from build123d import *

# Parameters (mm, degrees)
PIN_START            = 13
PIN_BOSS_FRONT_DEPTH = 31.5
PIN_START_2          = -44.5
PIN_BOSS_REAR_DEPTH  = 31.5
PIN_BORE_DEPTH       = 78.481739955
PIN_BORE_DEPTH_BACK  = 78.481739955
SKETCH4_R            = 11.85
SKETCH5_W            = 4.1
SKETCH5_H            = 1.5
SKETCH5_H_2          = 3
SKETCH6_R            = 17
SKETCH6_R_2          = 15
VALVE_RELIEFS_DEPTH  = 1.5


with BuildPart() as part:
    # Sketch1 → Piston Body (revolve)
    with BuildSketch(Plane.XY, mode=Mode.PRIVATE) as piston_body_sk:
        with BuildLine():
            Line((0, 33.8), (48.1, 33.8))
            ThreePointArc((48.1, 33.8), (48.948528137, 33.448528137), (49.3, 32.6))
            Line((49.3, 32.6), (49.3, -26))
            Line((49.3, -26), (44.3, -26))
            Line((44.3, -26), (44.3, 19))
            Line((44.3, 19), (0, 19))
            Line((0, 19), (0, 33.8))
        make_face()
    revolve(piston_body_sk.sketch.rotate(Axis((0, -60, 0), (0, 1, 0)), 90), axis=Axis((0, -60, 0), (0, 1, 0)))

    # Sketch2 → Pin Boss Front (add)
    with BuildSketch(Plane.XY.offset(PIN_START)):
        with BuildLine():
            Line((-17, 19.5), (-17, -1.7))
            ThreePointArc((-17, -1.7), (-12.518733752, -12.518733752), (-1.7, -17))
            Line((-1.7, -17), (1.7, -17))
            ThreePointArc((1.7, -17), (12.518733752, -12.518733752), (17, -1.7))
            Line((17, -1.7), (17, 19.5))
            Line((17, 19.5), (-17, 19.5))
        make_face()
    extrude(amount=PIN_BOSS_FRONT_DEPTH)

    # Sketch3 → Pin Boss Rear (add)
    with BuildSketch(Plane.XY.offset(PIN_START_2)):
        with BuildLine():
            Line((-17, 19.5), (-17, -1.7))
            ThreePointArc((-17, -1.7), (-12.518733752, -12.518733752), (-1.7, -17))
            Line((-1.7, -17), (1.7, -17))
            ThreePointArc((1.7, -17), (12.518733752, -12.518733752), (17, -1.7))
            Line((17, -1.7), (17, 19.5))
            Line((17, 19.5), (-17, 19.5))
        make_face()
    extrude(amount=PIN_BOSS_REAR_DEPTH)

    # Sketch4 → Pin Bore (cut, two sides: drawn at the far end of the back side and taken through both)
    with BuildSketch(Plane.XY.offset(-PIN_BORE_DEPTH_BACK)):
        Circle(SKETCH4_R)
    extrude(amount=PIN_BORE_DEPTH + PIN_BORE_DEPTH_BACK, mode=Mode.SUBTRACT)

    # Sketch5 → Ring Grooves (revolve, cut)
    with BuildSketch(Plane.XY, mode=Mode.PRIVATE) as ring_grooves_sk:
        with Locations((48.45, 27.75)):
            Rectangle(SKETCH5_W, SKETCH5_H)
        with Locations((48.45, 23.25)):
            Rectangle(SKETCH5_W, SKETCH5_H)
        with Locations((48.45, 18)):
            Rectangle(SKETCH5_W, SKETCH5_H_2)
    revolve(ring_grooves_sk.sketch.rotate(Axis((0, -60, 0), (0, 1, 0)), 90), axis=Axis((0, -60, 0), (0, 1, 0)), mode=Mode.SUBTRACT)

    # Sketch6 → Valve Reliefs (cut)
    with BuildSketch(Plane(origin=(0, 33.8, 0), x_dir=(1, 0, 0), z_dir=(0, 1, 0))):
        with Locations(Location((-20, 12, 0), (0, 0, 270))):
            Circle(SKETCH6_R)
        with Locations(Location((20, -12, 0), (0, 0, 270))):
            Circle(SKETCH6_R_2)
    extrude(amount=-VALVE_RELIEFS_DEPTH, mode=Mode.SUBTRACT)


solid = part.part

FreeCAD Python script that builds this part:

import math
import FreeCAD as App
import Part
import Sketcher
from FreeCAD import Vector
Q = App.Units.Quantity


def add_polygon(sketch, points):
    """Adds a closed chain of lines whose ends are joined by coincident constraints."""
    first, n = sketch.GeometryCount, len(points)
    for a, b in zip(points, points[1:] + points[:1]):
        sketch.addGeometry(Part.LineSegment(App.Vector(*a, 0), App.Vector(*b, 0)), False)
    for i in range(n):
        sketch.addConstraint(Sketcher.Constraint("Coincident", first + i, 2, first + (i + 1) % n, 1))

doc = App.newDocument("Part")
body = doc.addObject("PartDesign::Body", "Body")

sketch1 = doc.addObject("Sketcher::SketchObject", "Sketch")
body.addObject(sketch1)
sketch1.AttachmentSupport = (doc.XY_Plane, [""])
sketch1.MapMode = "FlatFace"
sketch1.addGeometry([
    Part.LineSegment(Vector(48.1, 33.8, 0), Vector(0, 33.8, 0)),
    Part.LineSegment(Vector(0, 33.8, 0), Vector(0, 19, 0)),
    Part.LineSegment(Vector(0, 19, 0), Vector(44.3, 19, 0)),
    Part.LineSegment(Vector(44.3, 19, 0), Vector(44.3, -26, 0)),
    Part.LineSegment(Vector(44.3, -26, 0), Vector(49.3, -26, 0)),
    Part.LineSegment(Vector(49.3, -26, 0), Vector(49.3, 32.6, 0)),
    Part.ArcOfCircle(Part.Circle(Vector(48.1, 32.6, 0), Vector(0, 0, 1), 1.2), math.radians(0), math.radians(90)),
], False)
sketch1.addConstraint([
    Sketcher.Constraint("Coincident", 0, 2, 1, 1),
    Sketcher.Constraint("Coincident", 1, 2, 2, 1),
    Sketcher.Constraint("Coincident", 2, 2, 3, 1),
    Sketcher.Constraint("Coincident", 3, 2, 4, 1),
    Sketcher.Constraint("Coincident", 4, 2, 5, 1),
    Sketcher.Constraint("Tangent", 5, 2, 6, 1),
    Sketcher.Constraint("Tangent", 6, 2, 0, 1),
    Sketcher.Constraint("Horizontal", 0),
    Sketcher.Constraint("Vertical", 1),
    Sketcher.Constraint("Horizontal", 2),
    Sketcher.Constraint("Vertical", 3),
    Sketcher.Constraint("Horizontal", 4),
    Sketcher.Constraint("Vertical", 5),
    Sketcher.Constraint("PointOnObject", 0, 2, -2),
    Sketcher.Constraint("Radius", 6, Q("1.2 mm")),
    Sketcher.Constraint("DistanceX", 4, 1, 4, 2, Q("5 mm")),
    Sketcher.Constraint("DistanceY", 3, 2, 3, 1, Q("45 mm")),
    Sketcher.Constraint("DistanceX", 0, 2, 0, 1, Q("48.1 mm")),
    Sketcher.Constraint("DistanceY", 1, 2, 1, 1, Q("14.8 mm")),
    Sketcher.Constraint("DistanceY", -1, 1, 1, 2, Q("19 mm")),
])
revolution = doc.addObject("PartDesign::Revolution", "Revolution")
body.addObject(revolution)
revolution.Profile = sketch1
revolution.ReferenceAxis = (sketch1, ["V_Axis"])
revolution.Angle = 360

sketch2 = doc.addObject("Sketcher::SketchObject", "Sketch001")
body.addObject(sketch2)
sketch2.AttachmentSupport = (doc.XY_Plane, [""])
sketch2.MapMode = "FlatFace"
sketch2.AttachmentOffset = App.Placement(Vector(0, 0, 13), App.Rotation())
sketch2.addGeometry([
    Part.LineSegment(Vector(-17, 19.5, 0), Vector(-17, -1.7, 0)),
    Part.ArcOfCircle(Part.Circle(Vector(-1.7, -1.7, 0), Vector(0, 0, 1), 15.3), math.radians(-180), math.radians(-90)),
    Part.LineSegment(Vector(-1.7, -17, 0), Vector(1.7, -17, 0)),
    Part.ArcOfCircle(Part.Circle(Vector(1.7, -1.7, 0), Vector(0, 0, 1), 15.3), math.radians(-90), math.radians(0)),
    Part.LineSegment(Vector(17, -1.7, 0), Vector(17, 19.5, 0)),
    Part.LineSegment(Vector(17, 19.5, 0), Vector(-17, 19.5, 0)),
], False)
sketch2.addConstraint([
    Sketcher.Constraint("Tangent", 0, 2, 1, 1),
    Sketcher.Constraint("Tangent", 1, 2, 2, 1),
    Sketcher.Constraint("Tangent", 2, 2, 3, 1),
    Sketcher.Constraint("Tangent", 3, 2, 4, 1),
    Sketcher.Constraint("Coincident", 4, 2, 5, 1),
    Sketcher.Constraint("Coincident", 5, 2, 0, 1),
    Sketcher.Constraint("Vertical", 0),
    Sketcher.Constraint("Horizontal", 2),
    Sketcher.Constraint("Vertical", 4),
    Sketcher.Constraint("Horizontal", 5),
    Sketcher.Constraint("Equal", 1, 3),
    Sketcher.Constraint("Radius", 1, Q("15.3 mm")),
    Sketcher.Constraint("DistanceX", 5, 2, 5, 1, Q("34 mm")),
    Sketcher.Constraint("DistanceY", 0, 2, 0, 1, Q("21.2 mm")),
    Sketcher.Constraint("DistanceX", 0, 2, -1, 1, Q("17 mm")),
    Sketcher.Constraint("DistanceY", 1, 2, -1, 1, Q("17 mm")),
])
pad1 = doc.addObject("PartDesign::Pad", "Pad")
body.addObject(pad1)
pad1.Profile = sketch2
pad1.Length = 31.5

sketch3 = doc.addObject("Sketcher::SketchObject", "Sketch002")
body.addObject(sketch3)
sketch3.AttachmentSupport = (doc.XY_Plane, [""])
sketch3.MapMode = "FlatFace"
sketch3.AttachmentOffset = App.Placement(Vector(0, 0, -44.5), App.Rotation())
sketch3.addGeometry([
    Part.LineSegment(Vector(-17, 19.5, 0), Vector(-17, -1.7, 0)),
    Part.ArcOfCircle(Part.Circle(Vector(-1.7, -1.7, 0), Vector(0, 0, 1), 15.3), math.radians(-180), math.radians(-90)),
    Part.LineSegment(Vector(-1.7, -17, 0), Vector(1.7, -17, 0)),
    Part.ArcOfCircle(Part.Circle(Vector(1.7, -1.7, 0), Vector(0, 0, 1), 15.3), math.radians(-90), math.radians(0)),
    Part.LineSegment(Vector(17, -1.7, 0), Vector(17, 19.5, 0)),
    Part.LineSegment(Vector(17, 19.5, 0), Vector(-17, 19.5, 0)),
], False)
sketch3.addConstraint([
    Sketcher.Constraint("Tangent", 0, 2, 1, 1),
    Sketcher.Constraint("Tangent", 1, 2, 2, 1),
    Sketcher.Constraint("Tangent", 2, 2, 3, 1),
    Sketcher.Constraint("Tangent", 3, 2, 4, 1),
    Sketcher.Constraint("Coincident", 4, 2, 5, 1),
    Sketcher.Constraint("Coincident", 5, 2, 0, 1),
    Sketcher.Constraint("Vertical", 0),
    Sketcher.Constraint("Horizontal", 2),
    Sketcher.Constraint("Vertical", 4),
    Sketcher.Constraint("Horizontal", 5),
    Sketcher.Constraint("Equal", 1, 3),
    Sketcher.Constraint("Radius", 1, Q("15.3 mm")),
    Sketcher.Constraint("DistanceX", 5, 2, 5, 1, Q("34 mm")),
    Sketcher.Constraint("DistanceY", 0, 2, 0, 1, Q("21.2 mm")),
    Sketcher.Constraint("DistanceX", 0, 2, -1, 1, Q("17 mm")),
    Sketcher.Constraint("DistanceY", 1, 2, -1, 1, Q("17 mm")),
])
pad2 = doc.addObject("PartDesign::Pad", "Pad001")
body.addObject(pad2)
pad2.Profile = sketch3
pad2.Length = 31.5

sketch4 = doc.addObject("Sketcher::SketchObject", "Sketch003")
body.addObject(sketch4)
sketch4.AttachmentSupport = (doc.XY_Plane, [""])
sketch4.MapMode = "FlatFace"
sketch4.addGeometry(Part.Circle(Vector(0, 0, 0), Vector(0, 0, 1), 12), False)
sketch4.addConstraint([
    Sketcher.Constraint("Coincident", 0, 3, -1, 1),
    Sketcher.Constraint("Diameter", 0, Q("23.7 mm")),
])
pocket1 = doc.addObject("PartDesign::Pocket", "Pocket")
body.addObject(pocket1)
pocket1.Profile = sketch4
pocket1.Type = "ThroughAll"
pocket1.Midplane = True

sketch5 = doc.addObject("Sketcher::SketchObject", "Sketch004")
body.addObject(sketch5)
sketch5.AttachmentSupport = (doc.XY_Plane, [""])
sketch5.MapMode = "FlatFace"
add_polygon(sketch5, [(46.4, 28.5), (46.4, 27), (50.5, 27), (50.5, 28.5)])
add_polygon(sketch5, [(46.4, 24), (46.4, 22.5), (50.5, 22.5), (50.5, 24)])
add_polygon(sketch5, [(46.4, 19.5), (46.4, 16.5), (50.5, 16.5), (50.5, 19.5)])
sketch5.addConstraint([
    Sketcher.Constraint("Vertical", 0),
    Sketcher.Constraint("Horizontal", 1),
    Sketcher.Constraint("Vertical", 2),
    Sketcher.Constraint("Horizontal", 3),
    Sketcher.Constraint("Vertical", 4),
    Sketcher.Constraint("Horizontal", 5),
    Sketcher.Constraint("Vertical", 6),
    Sketcher.Constraint("Horizontal", 7),
    Sketcher.Constraint("Vertical", 8),
    Sketcher.Constraint("Horizontal", 9),
    Sketcher.Constraint("Vertical", 10),
    Sketcher.Constraint("Horizontal", 11),
    Sketcher.Constraint("Vertical", 3, 2, 4, 2),
    Sketcher.Constraint("Vertical", 2, 2, 5, 2),
    Sketcher.Constraint("Vertical", 7, 2, 8, 2),
    Sketcher.Constraint("Vertical", 6, 2, 9, 2),
    Sketcher.Constraint("Equal", 2, 4),
    Sketcher.Constraint("DistanceY", 8, 2, 8, 1, Q("3 mm")),
    Sketcher.Constraint("DistanceX", 1, 1, 1, 2, Q("4.1 mm")),
    Sketcher.Constraint("DistanceY", 0, 2, 0, 1, Q("1.5 mm")),
    Sketcher.Constraint("DistanceY", -1, 1, 0, 2, Q("27 mm")),
    Sketcher.Constraint("DistanceY", -1, 1, 6, 2, Q("24 mm")),
    Sketcher.Constraint("DistanceY", 8, 2, 4, 2, Q("6 mm")),
    Sketcher.Constraint("DistanceX", -1, 1, 0, 2, Q("46.4 mm")),
])
groove = doc.addObject("PartDesign::Groove", "Groove")
body.addObject(groove)
groove.Profile = sketch5
groove.ReferenceAxis = (sketch5, ["V_Axis"])
groove.Angle = 360

sketch6 = doc.addObject("Sketcher::SketchObject", "Sketch005")
body.addObject(sketch6)
sketch6.AttachmentSupport = (doc.XZ_Plane, [""])
sketch6.MapMode = "FlatFace"
sketch6.AttachmentOffset = App.Placement(Vector(0, 0, -33.8), App.Rotation())
sketch6.addGeometry([
    Part.Circle(Vector(-20, -12, 0), Vector(0, 0, 1), 17),
    Part.Circle(Vector(20, 12, 0), Vector(0, 0, 1), 15),
], False)
sketch6.addConstraint([
    Sketcher.Constraint("Symmetric", 0, 3, 1, 3, -1, 1),
    Sketcher.Constraint("Diameter", 0, Q("34 mm")),
    Sketcher.Constraint("Diameter", 1, Q("30 mm")),
    Sketcher.Constraint("DistanceX", 0, 3, -1, 1, Q("20 mm")),
    Sketcher.Constraint("DistanceY", 0, 3, -1, 1, Q("12 mm")),
])
pocket2 = doc.addObject("PartDesign::Pocket", "Pocket001")
body.addObject(pocket2)
pocket2.Profile = sketch6
pocket2.Length = 1.5
pocket2.Reversed = True

doc.recompute()
